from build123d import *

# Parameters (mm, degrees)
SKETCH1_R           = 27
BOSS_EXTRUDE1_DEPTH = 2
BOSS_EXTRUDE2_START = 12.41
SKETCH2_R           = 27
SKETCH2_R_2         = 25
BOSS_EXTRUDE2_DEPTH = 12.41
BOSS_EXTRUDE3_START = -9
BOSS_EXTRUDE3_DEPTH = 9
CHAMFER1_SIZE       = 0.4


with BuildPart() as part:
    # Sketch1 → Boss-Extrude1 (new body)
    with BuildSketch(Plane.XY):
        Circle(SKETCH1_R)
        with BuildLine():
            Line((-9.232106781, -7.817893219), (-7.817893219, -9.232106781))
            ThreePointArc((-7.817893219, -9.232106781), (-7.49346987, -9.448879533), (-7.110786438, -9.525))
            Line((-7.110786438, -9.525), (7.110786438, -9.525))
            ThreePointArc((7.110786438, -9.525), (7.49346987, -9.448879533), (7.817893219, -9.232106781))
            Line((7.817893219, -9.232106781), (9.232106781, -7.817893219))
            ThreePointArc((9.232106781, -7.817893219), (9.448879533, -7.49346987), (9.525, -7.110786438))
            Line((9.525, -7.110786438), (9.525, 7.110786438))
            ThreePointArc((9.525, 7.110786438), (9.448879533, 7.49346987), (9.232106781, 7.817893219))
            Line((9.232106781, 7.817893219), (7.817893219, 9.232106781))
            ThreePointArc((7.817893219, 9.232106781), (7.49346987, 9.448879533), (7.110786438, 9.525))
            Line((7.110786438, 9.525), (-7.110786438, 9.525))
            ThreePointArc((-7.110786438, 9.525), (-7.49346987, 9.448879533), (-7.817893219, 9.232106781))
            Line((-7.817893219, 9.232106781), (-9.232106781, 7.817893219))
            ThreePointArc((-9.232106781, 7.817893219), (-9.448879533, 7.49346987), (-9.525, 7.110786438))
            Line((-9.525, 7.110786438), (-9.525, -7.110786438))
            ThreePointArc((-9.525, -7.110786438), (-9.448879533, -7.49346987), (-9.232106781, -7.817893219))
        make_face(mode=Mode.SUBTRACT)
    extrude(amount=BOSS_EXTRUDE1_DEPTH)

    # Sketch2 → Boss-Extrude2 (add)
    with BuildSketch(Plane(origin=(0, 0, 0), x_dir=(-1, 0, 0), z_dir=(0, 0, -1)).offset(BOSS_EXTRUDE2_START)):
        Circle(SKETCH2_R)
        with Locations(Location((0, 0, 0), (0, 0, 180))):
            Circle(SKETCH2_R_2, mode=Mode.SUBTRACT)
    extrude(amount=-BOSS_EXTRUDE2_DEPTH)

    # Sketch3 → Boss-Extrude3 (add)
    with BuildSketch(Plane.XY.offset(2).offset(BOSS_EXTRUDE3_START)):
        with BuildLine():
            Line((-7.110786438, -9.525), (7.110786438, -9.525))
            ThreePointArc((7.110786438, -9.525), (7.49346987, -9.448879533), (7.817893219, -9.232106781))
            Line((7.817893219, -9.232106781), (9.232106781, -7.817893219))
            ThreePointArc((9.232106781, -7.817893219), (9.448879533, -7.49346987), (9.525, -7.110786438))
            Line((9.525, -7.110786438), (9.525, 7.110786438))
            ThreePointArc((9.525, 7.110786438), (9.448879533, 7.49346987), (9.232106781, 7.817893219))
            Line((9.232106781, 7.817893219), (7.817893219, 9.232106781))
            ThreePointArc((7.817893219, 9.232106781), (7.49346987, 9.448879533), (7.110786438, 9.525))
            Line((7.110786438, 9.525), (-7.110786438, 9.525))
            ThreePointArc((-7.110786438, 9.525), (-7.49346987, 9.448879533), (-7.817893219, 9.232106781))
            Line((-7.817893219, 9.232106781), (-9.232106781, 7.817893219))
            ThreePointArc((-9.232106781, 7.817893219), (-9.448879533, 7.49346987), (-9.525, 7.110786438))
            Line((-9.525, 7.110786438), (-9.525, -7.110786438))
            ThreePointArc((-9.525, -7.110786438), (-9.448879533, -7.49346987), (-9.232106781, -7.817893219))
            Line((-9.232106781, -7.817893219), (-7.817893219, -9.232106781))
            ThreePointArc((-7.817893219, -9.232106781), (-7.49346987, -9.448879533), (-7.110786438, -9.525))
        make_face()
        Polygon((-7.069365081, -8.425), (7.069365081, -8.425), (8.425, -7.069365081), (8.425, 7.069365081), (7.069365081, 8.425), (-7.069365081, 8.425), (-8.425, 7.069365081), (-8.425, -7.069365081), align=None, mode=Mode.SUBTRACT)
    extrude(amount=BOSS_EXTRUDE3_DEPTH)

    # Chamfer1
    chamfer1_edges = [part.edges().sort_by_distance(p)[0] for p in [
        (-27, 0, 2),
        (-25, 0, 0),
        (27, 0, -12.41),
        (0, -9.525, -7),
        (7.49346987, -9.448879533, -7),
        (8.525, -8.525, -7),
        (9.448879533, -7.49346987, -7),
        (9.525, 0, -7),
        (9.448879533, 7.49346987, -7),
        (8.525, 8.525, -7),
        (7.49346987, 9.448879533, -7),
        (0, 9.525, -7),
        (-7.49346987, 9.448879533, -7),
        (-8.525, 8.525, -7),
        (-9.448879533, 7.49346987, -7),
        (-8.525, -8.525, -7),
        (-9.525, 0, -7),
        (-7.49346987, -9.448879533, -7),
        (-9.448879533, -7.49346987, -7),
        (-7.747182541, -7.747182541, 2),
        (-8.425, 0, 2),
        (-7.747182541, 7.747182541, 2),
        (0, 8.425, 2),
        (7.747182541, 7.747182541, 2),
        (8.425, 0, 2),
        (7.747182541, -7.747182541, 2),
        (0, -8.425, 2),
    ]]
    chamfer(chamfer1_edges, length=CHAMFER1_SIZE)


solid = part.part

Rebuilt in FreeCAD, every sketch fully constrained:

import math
import FreeCAD as App
import Part
import Sketcher


def edges_at(feature, points):
    """Names of the edges that pass closest to the given points."""
    edges = feature.Shape.Edges
    near = lambda p: min(range(len(edges)), key=lambda i: edges[i].distToShape(Part.Vertex(*p))[0])
    return sorted({f"Edge{near(p) + 1}" for p in points})


def add_polygon(sketch, points):
    """Adds a closed chain of lines whose ends are joined by coincident constraints."""
    first, n = sketch.GeometryCount, len(points)
    for a, b in zip(points, points[1:] + points[:1]):
        sketch.addGeometry(Part.LineSegment(App.Vector(*a, 0), App.Vector(*b, 0)), False)
    for i in range(n):
        sketch.addConstraint(Sketcher.Constraint("Coincident", first + i, 2, first + (i + 1) % n, 1))

doc = App.newDocument("Part")
body = doc.addObject("PartDesign::Body", "Body")

sketch1 = body.newObject("Sketcher::SketchObject", "Sketch")
sketch1.AttachmentSupport = (doc.getObject("XY_Plane"), [""])
sketch1.MapMode = "FlatFace"
sketch1.addGeometry(Part.Circle(App.Vector(0, 0, 0), App.Vector(0, 0, 1), 27), False)
sketch1.addGeometry(Part.LineSegment(App.Vector(-7.8, -9.2, 0), App.Vector(-9.2, -7.8, 0)), False)
sketch1.addGeometry(Part.ArcOfCircle(Part.Circle(App.Vector(-8.5, -7.1, 0), App.Vector(0, 0, 1), 1), math.radians(180), math.radians(225)), False)
sketch1.addGeometry(Part.LineSegment(App.Vector(-9.5, -7.1, 0), App.Vector(-9.5, 7.1, 0)), False)
sketch1.addGeometry(Part.ArcOfCircle(Part.Circle(App.Vector(-8.5, 7.1, 0), App.Vector(0, 0, 1), 1), math.radians(135), math.radians(180)), False)
sketch1.addGeometry(Part.LineSegment(App.Vector(-9.2, 7.8, 0), App.Vector(-7.8, 9.2, 0)), False)
sketch1.addGeometry(Part.ArcOfCircle(Part.Circle(App.Vector(-7.1, 8.5, 0), App.Vector(0, 0, 1), 1), math.radians(90), math.radians(135)), False)
sketch1.addGeometry(Part.LineSegment(App.Vector(-7.1, 9.5, 0), App.Vector(7.1, 9.5, 0)), False)
sketch1.addGeometry(Part.ArcOfCircle(Part.Circle(App.Vector(7.1, 8.5, 0), App.Vector(0, 0, 1), 1), math.radians(45), math.radians(90)), False)
sketch1.addGeometry(Part.LineSegment(App.Vector(7.8, 9.2, 0), App.Vector(9.2, 7.8, 0)), False)
sketch1.addGeometry(Part.ArcOfCircle(Part.Circle(App.Vector(8.5, 7.1, 0), App.Vector(0, 0, 1), 1), math.radians(0), math.radians(45)), False)
sketch1.addGeometry(Part.LineSegment(App.Vector(9.5, 7.1, 0), App.Vector(9.5, -7.1, 0)), False)
sketch1.addGeometry(Part.ArcOfCircle(Part.Circle(App.Vector(8.5, -7.1, 0), App.Vector(0, 0, 1), 1), math.radians(-45), math.radians(0)), False)
sketch1.addGeometry(Part.LineSegment(App.Vector(9.2, -7.8, 0), App.Vector(7.8, -9.2, 0)), False)
sketch1.addGeometry(Part.ArcOfCircle(Part.Circle(App.Vector(7.1, -8.5, 0), App.Vector(0, 0, 1), 1), math.radians(-90), math.radians(-45)), False)
sketch1.addGeometry(Part.LineSegment(App.Vector(7.1, -9.5, 0), App.Vector(-7.1, -9.5, 0)), False)
sketch1.addGeometry(Part.ArcOfCircle(Part.Circle(App.Vector(-7.1, -8.5, 0), App.Vector(0, 0, 1), 1), math.radians(-135), math.radians(-90)), False)
sketch1.addConstraint(Sketcher.Constraint("Tangent", 1, 2, 2, 2))
sketch1.addConstraint(Sketcher.Constraint("Tangent", 2, 1, 3, 1))
sketch1.addConstraint(Sketcher.Constraint("Tangent", 3, 2, 4, 2))
sketch1.addConstraint(Sketcher.Constraint("Tangent", 4, 1, 5, 1))
sketch1.addConstraint(Sketcher.Constraint("Tangent", 5, 2, 6, 2))
sketch1.addConstraint(Sketcher.Constraint("Tangent", 6, 1, 7, 1))
sketch1.addConstraint(Sketcher.Constraint("Tangent", 7, 2, 8, 2))
sketch1.addConstraint(Sketcher.Constraint("Tangent", 8, 1, 9, 1))
sketch1.addConstraint(Sketcher.Constraint("Tangent", 9, 2, 10, 2))
sketch1.addConstraint(Sketcher.Constraint("Tangent", 10, 1, 11, 1))
sketch1.addConstraint(Sketcher.Constraint("Tangent", 11, 2, 12, 2))
sketch1.addConstraint(Sketcher.Constraint("Tangent", 12, 1, 13, 1))
sketch1.addConstraint(Sketcher.Constraint("Tangent", 13, 2, 14, 2))
sketch1.addConstraint(Sketcher.Constraint("Tangent", 14, 1, 15, 1))
sketch1.addConstraint(Sketcher.Constraint("Tangent", 15, 2, 16, 2))
sketch1.addConstraint(Sketcher.Constraint("Tangent", 16, 1, 1, 1))
sketch1.addConstraint(Sketcher.Constraint("Vertical", 3))
sketch1.addConstraint(Sketcher.Constraint("Horizontal", 7))
sketch1.addConstraint(Sketcher.Constraint("Vertical", 11))
sketch1.addConstraint(Sketcher.Constraint("Horizontal", 15))
sketch1.addConstraint(Sketcher.Constraint("Coincident", 0, 3, -1, 1))
sketch1.addConstraint(Sketcher.Constraint("Equal", 2, 4))
sketch1.addConstraint(Sketcher.Constraint("Equal", 4, 6))
sketch1.addConstraint(Sketcher.Constraint("Equal", 6, 8))
sketch1.addConstraint(Sketcher.Constraint("Equal", 8, 10))
sketch1.addConstraint(Sketcher.Constraint("Equal", 10, 12))
sketch1.addConstraint(Sketcher.Constraint("Equal", 12, 14))
sketch1.addConstraint(Sketcher.Constraint("Equal", 14, 16))
sketch1.addConstraint(Sketcher.Constraint("Symmetric", 2, 3, 10, 3, -1, 1))
sketch1.addConstraint(Sketcher.Constraint("Symmetric", 6, 3, 14, 3, -1, 1))
sketch1.addConstraint(Sketcher.Constraint("Symmetric", 5, 2, 8, 1, -2))
sketch1.addConstraint(Sketcher.Constraint("Symmetric", 1, 2, 12, 1, -2))
sketch1.addConstraint(Sketcher.Constraint("Perpendicular", 1, 5))
sketch1.addConstraint(Sketcher.Constraint("Equal", 15, 3))
sketch1.addConstraint(Sketcher.Constraint("Diameter", 0, 54.0))
sketch1.addConstraint(Sketcher.Constraint("Radius", 2, 1.0))
sketch1.addConstraint(Sketcher.Constraint("Distance", 1, 2.0))
sketch1.addConstraint(Sketcher.Constraint("DistanceX", 4, 3, 10, 3, 17.05))
pad1 = body.newObject("PartDesign::Pad", "Pad")
pad1.Profile = sketch1
pad1.Length = 2

sketch2 = body.newObject("Sketcher::SketchObject", "Sketch001")
sketch2.AttachmentSupport = (doc.getObject("XY_Plane"), [""])
sketch2.MapMode = "FlatFace"
sketch2.AttachmentOffset = App.Placement(App.Vector(0, 0, -12.41), App.Rotation())
sketch2.addGeometry(Part.Circle(App.Vector(0, 0, 0), App.Vector(0, 0, 1), 27), False)
sketch2.addGeometry(Part.Circle(App.Vector(0, 0, 0), App.Vector(0, 0, 1), 25), False)
sketch2.addConstraint(Sketcher.Constraint("Coincident", 0, 3, -1, 1))
sketch2.addConstraint(Sketcher.Constraint("Coincident", 1, 3, -1, 1))
sketch2.addConstraint(Sketcher.Constraint("Diameter", 0, 54.0))
sketch2.addConstraint(Sketcher.Constraint("Diameter", 1, 50.0))
pad2 = body.newObject("PartDesign::Pad", "Pad001")
pad2.Profile = sketch2
pad2.Length = 12.41

sketch3 = body.newObject("Sketcher::SketchObject", "Sketch002")
sketch3.AttachmentSupport = (doc.getObject("XY_Plane"), [""])
sketch3.MapMode = "FlatFace"
sketch3.AttachmentOffset = App.Placement(App.Vector(0, 0, -7), App.Rotation())
sketch3.addGeometry(Part.LineSegment(App.Vector(-7.1, -9.5, 0), App.Vector(7.1, -9.5, 0)), False)
sketch3.addGeometry(Part.ArcOfCircle(Part.Circle(App.Vector(7.1, -8.5, 0), App.Vector(0, 0, 1), 1), math.radians(-90), math.radians(-45)), False)
sketch3.addGeometry(Part.LineSegment(App.Vector(7.8, -9.2, 0), App.Vector(9.2, -7.8, 0)), False)
sketch3.addGeometry(Part.ArcOfCircle(Part.Circle(App.Vector(8.5, -7.1, 0), App.Vector(0, 0, 1), 1), math.radians(-45), math.radians(0)), False)
sketch3.addGeometry(Part.LineSegment(App.Vector(9.5, -7.1, 0), App.Vector(9.5, 7.1, 0)), False)
sketch3.addGeometry(Part.ArcOfCircle(Part.Circle(App.Vector(8.5, 7.1, 0), App.Vector(0, 0, 1), 1), math.radians(0), math.radians(45)), False)
sketch3.addGeometry(Part.LineSegment(App.Vector(9.2, 7.8, 0), App.Vector(7.8, 9.2, 0)), False)
sketch3.addGeometry(Part.ArcOfCircle(Part.Circle(App.Vector(7.1, 8.5, 0), App.Vector(0, 0, 1), 1), math.radians(45), math.radians(90)), False)
sketch3.addGeometry(Part.LineSegment(App.Vector(7.1, 9.5, 0), App.Vector(-7.1, 9.5, 0)), False)
sketch3.addGeometry(Part.ArcOfCircle(Part.Circle(App.Vector(-7.1, 8.5, 0), App.Vector(0, 0, 1), 1), math.radians(90), math.radians(135)), False)
sketch3.addGeometry(Part.LineSegment(App.Vector(-7.8, 9.2, 0), App.Vector(-9.2, 7.8, 0)), False)
sketch3.addGeometry(Part.ArcOfCircle(Part.Circle(App.Vector(-8.5, 7.1, 0), App.Vector(0, 0, 1), 1), math.radians(135), math.radians(180)), False)
sketch3.addGeometry(Part.LineSegment(App.Vector(-9.5, 7.1, 0), App.Vector(-9.5, -7.1, 0)), False)
sketch3.addGeometry(Part.ArcOfCircle(Part.Circle(App.Vector(-8.5, -7.1, 0), App.Vector(0, 0, 1), 1), math.radians(180), math.radians(225)), False)
sketch3.addGeometry(Part.LineSegment(App.Vector(-9.2, -7.8, 0), App.Vector(-7.8, -9.2, 0)), False)
sketch3.addGeometry(Part.ArcOfCircle(Part.Circle(App.Vector(-7.1, -8.5, 0), App.Vector(0, 0, 1), 1), math.radians(-135), math.radians(-90)), False)
add_polygon(sketch3, [(7.1, -8.4), (-7.1, -8.4), (-8.4, -7.1), (-8.4, 7.1), (-7.1, 8.4), (7.1, 8.4), (8.4, 7.1), (8.4, -7.1)])
sketch3.addConstraint(Sketcher.Constraint("Tangent", 0, 2, 1, 1))
sketch3.addConstraint(Sketcher.Constraint("Tangent", 1, 2, 2, 1))
sketch3.addConstraint(Sketcher.Constraint("Tangent", 2, 2, 3, 1))
sketch3.addConstraint(Sketcher.Constraint("Tangent", 3, 2, 4, 1))
sketch3.addConstraint(Sketcher.Constraint("Tangent", 4, 2, 5, 1))
sketch3.addConstraint(Sketcher.Constraint("Tangent", 5, 2, 6, 1))
sketch3.addConstraint(Sketcher.Constraint("Tangent", 6, 2, 7, 1))
sketch3.addConstraint(Sketcher.Constraint("Tangent", 7, 2, 8, 1))
sketch3.addConstraint(Sketcher.Constraint("Tangent", 8, 2, 9, 1))
sketch3.addConstraint(Sketcher.Constraint("Tangent", 9, 2, 10, 1))
sketch3.addConstraint(Sketcher.Constraint("Tangent", 10, 2, 11, 1))
sketch3.addConstraint(Sketcher.Constraint("Tangent", 11, 2, 12, 1))
sketch3.addConstraint(Sketcher.Constraint("Tangent", 12, 2, 13, 1))
sketch3.addConstraint(Sketcher.Constraint("Tangent", 13, 2, 14, 1))
sketch3.addConstraint(Sketcher.Constraint("Tangent", 14, 2, 15, 1))
sketch3.addConstraint(Sketcher.Constraint("Tangent", 15, 2, 0, 1))
sketch3.addConstraint(Sketcher.Constraint("Horizontal", 0))
sketch3.addConstraint(Sketcher.Constraint("Vertical", 4))
sketch3.addConstraint(Sketcher.Constraint("Horizontal", 8))
sketch3.addConstraint(Sketcher.Constraint("Vertical", 12))
sketch3.addConstraint(Sketcher.Constraint("Horizontal", 16))
sketch3.addConstraint(Sketcher.Constraint("Vertical", 18))
sketch3.addConstraint(Sketcher.Constraint("Horizontal", 20))
sketch3.addConstraint(Sketcher.Constraint("Vertical", 22))
sketch3.addConstraint(Sketcher.Constraint("Equal", 1, 3))
sketch3.addConstraint(Sketcher.Constraint("Equal", 3, 5))
sketch3.addConstraint(Sketcher.Constraint("Equal", 5, 7))
sketch3.addConstraint(Sketcher.Constraint("Equal", 7, 9))
sketch3.addConstraint(Sketcher.Constraint("Equal", 9, 11))
sketch3.addConstraint(Sketcher.Constraint("Equal", 11, 13))
sketch3.addConstraint(Sketcher.Constraint("Equal", 13, 15))
sketch3.addConstraint(Sketcher.Constraint("Symmetric", 1, 3, 9, 3, -1, 1))
sketch3.addConstraint(Sketcher.Constraint("Symmetric", 3, 3, 11, 3, -1, 1))
sketch3.addConstraint(Sketcher.Constraint("Symmetric", 5, 2, 13, 2, -1, 1))
sketch3.addConstraint(Sketcher.Constraint("Symmetric", 16, 2, 20, 2, -1, 1))
sketch3.addConstraint(Sketcher.Constraint("Symmetric", 17, 2, 21, 2, -1, 1))
sketch3.addConstraint(Sketcher.Constraint("Symmetric", 6, 2, 9, 2, -2))
sketch3.addConstraint(Sketcher.Constraint("Perpendicular", 2, 6))
sketch3.addConstraint(Sketcher.Constraint("Parallel", 14, 17))
sketch3.addConstraint(Sketcher.Constraint("Perpendicular", 17, 19))
sketch3.addConstraint(Sketcher.Constraint("Perpendicular", 21, 23))
sketch3.addConstraint(Sketcher.Constraint("Horizontal", 18, 2, 21, 2))
sketch3.addConstraint(Sketcher.Constraint("Horizontal", 17, 2, 22, 2))
sketch3.addConstraint(Sketcher.Constraint("Equal", 8, 4))
sketch3.addConstraint(Sketcher.Constraint("Equal", 20, 18))
sketch3.addConstraint(Sketcher.Constraint("Radius", 1, 1.0))
sketch3.addConstraint(Sketcher.Constraint("Distance", 2, 2.0))
sketch3.addConstraint(Sketcher.Constraint("DistanceY", 15, 3, 16, 2, 0.1))
sketch3.addConstraint(Sketcher.Constraint("DistanceY", 1, 3, 7, 3, 17.05))
sketch3.addConstraint(Sketcher.Constraint("DistanceX", 16, 2, 16, 1, 14.13873))
pad3 = body.newObject("PartDesign::Pad", "Pad002")
pad3.Profile = sketch3
pad3.Length = 9
doc.recompute()

chamfer = body.newObject("PartDesign::Chamfer", "Chamfer")
chamfer.Base = (pad3, edges_at(pad3, [
    (-27, 0, 2),
    (-25, 0, 0),
    (27, 0, -12.41),
    (0, -9.525, -7),
    (7.493, -9.449, -7),
    (8.525, -8.525, -7),
    (9.449, -7.493, -7),
    (9.525, 0, -7),
    (9.449, 7.493, -7),
    (8.525, 8.525, -7),
    (7.493, 9.449, -7),
    (0, 9.525, -7),
    (-7.493, 9.449, -7),
    (-8.525, 8.525, -7),
    (-9.449, 7.493, -7),
    (-8.525, -8.525, -7),
    (-9.525, 0, -7),
    (-7.493, -9.449, -7),
    (-9.449, -7.493, -7),
    (-7.747, -7.747, 2),
    (-8.425, 0, 2),
    (-7.747, 7.747, 2),
    (0, 8.425, 2),
    (7.747, 7.747, 2),
    (8.425, 0, 2),
    (7.747, -7.747, 2),
    (0, -8.425, 2),
]))
chamfer.Size = 0.4

doc.recompute()
